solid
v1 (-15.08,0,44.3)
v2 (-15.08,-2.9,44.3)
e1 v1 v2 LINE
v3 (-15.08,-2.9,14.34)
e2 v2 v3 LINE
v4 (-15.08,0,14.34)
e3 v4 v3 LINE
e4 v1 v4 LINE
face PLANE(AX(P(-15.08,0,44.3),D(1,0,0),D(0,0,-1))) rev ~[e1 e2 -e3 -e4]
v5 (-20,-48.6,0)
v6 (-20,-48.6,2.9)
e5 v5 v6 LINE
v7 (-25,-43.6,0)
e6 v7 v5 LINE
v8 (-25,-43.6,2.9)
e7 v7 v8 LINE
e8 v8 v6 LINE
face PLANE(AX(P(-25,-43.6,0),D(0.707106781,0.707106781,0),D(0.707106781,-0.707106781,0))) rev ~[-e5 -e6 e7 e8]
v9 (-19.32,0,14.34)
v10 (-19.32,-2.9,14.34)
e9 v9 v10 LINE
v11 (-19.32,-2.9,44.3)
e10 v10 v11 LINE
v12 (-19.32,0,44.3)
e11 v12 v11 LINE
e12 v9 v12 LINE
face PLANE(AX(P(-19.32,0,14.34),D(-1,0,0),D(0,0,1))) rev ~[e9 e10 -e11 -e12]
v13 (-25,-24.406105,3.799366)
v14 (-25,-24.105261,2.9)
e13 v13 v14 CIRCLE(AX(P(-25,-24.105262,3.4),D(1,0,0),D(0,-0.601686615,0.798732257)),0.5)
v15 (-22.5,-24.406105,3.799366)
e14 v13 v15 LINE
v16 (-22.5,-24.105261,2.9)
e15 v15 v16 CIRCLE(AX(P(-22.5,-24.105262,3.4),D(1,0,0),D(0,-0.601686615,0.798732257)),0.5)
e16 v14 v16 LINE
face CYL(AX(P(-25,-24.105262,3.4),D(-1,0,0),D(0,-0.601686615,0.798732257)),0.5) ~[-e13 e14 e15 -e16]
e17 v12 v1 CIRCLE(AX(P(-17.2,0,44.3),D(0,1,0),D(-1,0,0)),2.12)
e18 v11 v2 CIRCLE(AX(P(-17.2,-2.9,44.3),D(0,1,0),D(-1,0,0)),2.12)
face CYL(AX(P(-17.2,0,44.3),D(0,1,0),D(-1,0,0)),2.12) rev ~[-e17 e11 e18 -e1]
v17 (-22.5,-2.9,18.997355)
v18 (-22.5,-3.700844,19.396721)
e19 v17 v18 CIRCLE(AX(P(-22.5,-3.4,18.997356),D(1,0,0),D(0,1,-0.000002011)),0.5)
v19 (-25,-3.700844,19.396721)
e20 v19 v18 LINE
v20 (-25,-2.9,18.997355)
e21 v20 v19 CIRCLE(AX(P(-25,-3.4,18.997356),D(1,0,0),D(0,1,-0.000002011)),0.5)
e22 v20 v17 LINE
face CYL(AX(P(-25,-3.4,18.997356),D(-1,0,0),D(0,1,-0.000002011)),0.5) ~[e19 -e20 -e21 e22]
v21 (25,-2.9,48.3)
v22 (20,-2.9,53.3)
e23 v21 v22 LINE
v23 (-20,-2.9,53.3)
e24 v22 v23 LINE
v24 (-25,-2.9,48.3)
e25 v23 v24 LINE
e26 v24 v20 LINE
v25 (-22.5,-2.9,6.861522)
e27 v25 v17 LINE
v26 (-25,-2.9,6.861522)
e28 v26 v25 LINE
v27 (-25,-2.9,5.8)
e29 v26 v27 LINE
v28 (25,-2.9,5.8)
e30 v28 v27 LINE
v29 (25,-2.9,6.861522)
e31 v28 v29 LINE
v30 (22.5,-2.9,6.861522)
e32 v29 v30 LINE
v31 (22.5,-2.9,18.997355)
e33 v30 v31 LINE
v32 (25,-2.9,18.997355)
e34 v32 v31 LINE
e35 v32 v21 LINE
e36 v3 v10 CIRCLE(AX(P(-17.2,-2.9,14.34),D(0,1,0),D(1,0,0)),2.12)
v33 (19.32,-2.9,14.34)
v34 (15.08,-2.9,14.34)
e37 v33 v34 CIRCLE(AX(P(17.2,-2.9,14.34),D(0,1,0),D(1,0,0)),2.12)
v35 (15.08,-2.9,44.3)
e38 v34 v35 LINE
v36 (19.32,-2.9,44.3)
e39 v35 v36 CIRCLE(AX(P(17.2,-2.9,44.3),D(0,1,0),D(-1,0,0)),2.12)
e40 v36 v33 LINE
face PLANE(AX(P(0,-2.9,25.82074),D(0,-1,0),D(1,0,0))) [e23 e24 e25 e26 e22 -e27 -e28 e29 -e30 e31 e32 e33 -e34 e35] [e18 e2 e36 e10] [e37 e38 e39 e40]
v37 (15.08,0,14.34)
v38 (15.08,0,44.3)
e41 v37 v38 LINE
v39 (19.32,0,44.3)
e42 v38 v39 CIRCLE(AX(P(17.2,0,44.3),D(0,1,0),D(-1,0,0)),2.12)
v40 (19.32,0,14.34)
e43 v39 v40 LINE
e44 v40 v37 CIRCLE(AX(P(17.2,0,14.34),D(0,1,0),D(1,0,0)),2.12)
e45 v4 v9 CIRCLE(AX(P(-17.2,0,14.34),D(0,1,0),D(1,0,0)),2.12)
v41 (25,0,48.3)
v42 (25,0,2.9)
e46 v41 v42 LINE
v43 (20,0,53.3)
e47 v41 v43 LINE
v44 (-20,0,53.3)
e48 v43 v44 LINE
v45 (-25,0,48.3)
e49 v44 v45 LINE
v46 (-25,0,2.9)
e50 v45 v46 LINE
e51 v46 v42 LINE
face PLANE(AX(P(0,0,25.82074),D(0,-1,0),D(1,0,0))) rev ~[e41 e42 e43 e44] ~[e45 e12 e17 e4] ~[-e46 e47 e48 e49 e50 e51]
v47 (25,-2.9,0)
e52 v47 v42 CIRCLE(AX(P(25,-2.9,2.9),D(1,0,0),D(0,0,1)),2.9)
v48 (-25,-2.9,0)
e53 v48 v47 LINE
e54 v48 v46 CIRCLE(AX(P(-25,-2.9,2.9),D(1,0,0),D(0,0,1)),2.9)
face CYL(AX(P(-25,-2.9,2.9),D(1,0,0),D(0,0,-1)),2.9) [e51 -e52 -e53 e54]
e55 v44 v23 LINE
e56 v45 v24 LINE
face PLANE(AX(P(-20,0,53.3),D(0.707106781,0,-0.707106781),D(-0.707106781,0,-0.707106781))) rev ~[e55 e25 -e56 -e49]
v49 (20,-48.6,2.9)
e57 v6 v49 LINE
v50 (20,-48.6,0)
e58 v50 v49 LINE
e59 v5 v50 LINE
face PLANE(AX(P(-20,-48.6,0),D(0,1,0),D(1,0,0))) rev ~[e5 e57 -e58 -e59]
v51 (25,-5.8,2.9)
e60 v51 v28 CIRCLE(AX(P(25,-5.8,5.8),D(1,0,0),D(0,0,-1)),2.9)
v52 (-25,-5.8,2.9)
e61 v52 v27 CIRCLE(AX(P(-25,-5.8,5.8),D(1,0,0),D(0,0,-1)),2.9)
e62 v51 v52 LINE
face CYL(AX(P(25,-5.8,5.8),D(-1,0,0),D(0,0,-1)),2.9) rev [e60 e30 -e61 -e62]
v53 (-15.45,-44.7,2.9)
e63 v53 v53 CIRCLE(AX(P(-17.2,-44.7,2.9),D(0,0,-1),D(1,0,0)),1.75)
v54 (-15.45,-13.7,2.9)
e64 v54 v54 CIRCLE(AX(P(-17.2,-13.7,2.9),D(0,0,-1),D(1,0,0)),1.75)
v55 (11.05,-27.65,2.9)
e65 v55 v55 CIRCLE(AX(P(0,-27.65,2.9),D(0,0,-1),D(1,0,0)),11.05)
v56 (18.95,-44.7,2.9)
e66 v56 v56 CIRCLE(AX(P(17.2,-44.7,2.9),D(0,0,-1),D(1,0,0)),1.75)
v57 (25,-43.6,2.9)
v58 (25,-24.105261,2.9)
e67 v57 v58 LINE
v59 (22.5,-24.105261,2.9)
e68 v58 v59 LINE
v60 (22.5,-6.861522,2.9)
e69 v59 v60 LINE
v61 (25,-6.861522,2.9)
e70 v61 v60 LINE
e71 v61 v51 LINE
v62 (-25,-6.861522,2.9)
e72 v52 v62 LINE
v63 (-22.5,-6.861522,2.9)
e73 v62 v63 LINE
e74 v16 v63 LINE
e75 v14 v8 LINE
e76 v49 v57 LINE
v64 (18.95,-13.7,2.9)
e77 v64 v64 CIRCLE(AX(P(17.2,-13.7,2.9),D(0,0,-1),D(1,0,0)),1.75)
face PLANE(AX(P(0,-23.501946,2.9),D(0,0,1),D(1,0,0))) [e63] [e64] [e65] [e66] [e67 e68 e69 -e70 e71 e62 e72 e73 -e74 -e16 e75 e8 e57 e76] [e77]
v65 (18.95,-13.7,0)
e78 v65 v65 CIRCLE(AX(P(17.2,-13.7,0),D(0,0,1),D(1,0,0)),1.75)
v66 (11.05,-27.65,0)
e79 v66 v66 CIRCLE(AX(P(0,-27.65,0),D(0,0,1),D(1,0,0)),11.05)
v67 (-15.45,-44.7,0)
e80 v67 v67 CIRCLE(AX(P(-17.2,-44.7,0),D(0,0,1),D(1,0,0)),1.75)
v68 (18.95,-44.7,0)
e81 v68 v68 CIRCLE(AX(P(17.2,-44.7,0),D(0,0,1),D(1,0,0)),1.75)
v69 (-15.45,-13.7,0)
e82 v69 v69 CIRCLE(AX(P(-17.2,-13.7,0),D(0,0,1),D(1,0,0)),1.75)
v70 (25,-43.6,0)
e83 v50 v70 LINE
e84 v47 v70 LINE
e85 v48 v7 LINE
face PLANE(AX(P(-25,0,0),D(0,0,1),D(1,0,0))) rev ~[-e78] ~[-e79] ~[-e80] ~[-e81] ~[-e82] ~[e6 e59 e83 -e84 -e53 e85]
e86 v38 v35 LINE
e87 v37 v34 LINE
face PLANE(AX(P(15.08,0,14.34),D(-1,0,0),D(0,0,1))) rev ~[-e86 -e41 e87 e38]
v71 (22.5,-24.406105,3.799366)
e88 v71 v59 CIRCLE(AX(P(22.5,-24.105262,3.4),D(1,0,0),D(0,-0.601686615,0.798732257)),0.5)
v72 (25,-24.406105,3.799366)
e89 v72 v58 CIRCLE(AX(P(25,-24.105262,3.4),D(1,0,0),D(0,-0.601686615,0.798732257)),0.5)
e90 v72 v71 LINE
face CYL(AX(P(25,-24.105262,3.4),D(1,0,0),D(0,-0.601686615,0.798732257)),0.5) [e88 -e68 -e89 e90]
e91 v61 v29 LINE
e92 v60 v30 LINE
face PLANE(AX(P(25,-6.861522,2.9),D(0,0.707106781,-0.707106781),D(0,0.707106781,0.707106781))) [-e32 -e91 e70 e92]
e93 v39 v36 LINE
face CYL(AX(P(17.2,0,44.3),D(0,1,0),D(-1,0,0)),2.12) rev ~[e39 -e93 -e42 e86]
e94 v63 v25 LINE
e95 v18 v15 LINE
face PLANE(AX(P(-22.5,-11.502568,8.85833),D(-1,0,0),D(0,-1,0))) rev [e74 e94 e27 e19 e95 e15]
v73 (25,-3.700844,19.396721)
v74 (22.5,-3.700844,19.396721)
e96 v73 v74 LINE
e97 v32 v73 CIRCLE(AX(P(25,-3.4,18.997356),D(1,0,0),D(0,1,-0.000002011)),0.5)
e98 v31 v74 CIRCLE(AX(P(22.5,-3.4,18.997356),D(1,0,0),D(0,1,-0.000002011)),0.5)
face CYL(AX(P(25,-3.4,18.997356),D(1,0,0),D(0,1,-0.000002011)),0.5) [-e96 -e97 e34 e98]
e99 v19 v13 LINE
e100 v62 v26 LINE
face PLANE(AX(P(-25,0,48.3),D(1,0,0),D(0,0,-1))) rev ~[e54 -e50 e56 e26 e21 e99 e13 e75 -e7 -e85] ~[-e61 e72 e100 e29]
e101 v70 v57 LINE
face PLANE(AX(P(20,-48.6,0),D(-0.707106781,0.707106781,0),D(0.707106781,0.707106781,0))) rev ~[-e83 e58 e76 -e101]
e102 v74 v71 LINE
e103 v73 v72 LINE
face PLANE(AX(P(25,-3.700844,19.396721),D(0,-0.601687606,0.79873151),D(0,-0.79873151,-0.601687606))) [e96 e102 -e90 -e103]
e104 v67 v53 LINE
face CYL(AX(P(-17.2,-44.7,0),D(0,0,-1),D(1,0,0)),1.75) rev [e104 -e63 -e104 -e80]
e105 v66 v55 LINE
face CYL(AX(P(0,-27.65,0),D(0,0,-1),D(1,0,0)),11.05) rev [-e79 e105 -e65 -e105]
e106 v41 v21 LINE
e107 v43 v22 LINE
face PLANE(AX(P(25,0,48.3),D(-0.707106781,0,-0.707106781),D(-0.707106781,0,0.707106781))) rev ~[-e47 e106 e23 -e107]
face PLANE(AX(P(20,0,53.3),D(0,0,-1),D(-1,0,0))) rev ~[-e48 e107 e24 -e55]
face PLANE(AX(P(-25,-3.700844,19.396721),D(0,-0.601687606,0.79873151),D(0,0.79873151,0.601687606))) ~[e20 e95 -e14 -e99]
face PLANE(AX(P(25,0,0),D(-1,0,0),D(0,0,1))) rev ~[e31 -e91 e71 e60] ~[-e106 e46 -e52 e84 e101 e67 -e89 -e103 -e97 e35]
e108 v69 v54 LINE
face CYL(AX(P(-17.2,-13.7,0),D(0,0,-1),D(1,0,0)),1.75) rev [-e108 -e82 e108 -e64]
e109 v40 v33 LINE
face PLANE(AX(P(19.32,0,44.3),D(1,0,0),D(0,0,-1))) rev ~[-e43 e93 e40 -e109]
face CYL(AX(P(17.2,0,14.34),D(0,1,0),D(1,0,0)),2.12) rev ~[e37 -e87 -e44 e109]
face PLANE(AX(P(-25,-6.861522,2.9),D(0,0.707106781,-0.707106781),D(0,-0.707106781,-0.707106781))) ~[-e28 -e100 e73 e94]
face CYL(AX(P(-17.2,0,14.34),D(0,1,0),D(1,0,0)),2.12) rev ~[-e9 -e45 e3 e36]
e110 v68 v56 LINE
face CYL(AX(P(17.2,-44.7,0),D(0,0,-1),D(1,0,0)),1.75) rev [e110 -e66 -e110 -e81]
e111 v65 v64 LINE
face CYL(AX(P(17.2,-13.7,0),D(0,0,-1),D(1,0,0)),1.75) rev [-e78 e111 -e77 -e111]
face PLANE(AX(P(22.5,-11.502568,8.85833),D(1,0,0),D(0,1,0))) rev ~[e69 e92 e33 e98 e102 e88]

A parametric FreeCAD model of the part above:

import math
import FreeCAD as App
import Part
import Sketcher

V = App.Vector
Q = App.Units.Quantity


def edges_at(feature, points):
    """Names of the edges that pass closest to the given points."""
    edges = feature.Shape.Edges
    near = lambda p: min(range(len(edges)), key=lambda i: edges[i].distToShape(Part.Vertex(*p))[0])
    return sorted({f"Edge{near(p) + 1}" for p in points})


def add_polygon(sketch, points):
    """Adds a closed chain of lines whose ends are joined by coincident constraints."""
    first, n = sketch.GeometryCount, len(points)
    for a, b in zip(points, points[1:] + points[:1]):
        sketch.addGeometry(Part.LineSegment(App.Vector(*a, 0), App.Vector(*b, 0)), False)
    for i in range(n):
        sketch.addConstraint(Sketcher.Constraint("Coincident", first + i, 2, first + (i + 1) % n, 1))

doc = App.newDocument("Part")
body = doc.addObject("PartDesign::Body", "Body")

# Sketch on XZ plane
sketch1 = body.newObject("Sketcher::SketchObject", "Sketch")
sketch1.AttachmentSupport = (doc.getObject("XZ_Plane"), [""])
sketch1.MapMode = "FlatFace"
add_polygon(sketch1, [(-25, 48.3), (-25, 0), (25, 0), (25, 48.3), (20, 53.3), (-20, 53.3)])  # lines 0-5
sketch1.addGeometry(Part.LineSegment(V(-19.32, 14.34, 0), V(-19.32, 44.3, 0)), False)  # 6
sketch1.addGeometry(Part.ArcOfCircle(Part.Circle(V(-17.2, 44.3, 0), V(0, 0, 1), 2.12), math.radians(0), math.radians(180)), False)  # 7
sketch1.addGeometry(Part.LineSegment(V(-15.08, 44.3, 0), V(-15.08, 14.34, 0)), False)  # 8
sketch1.addGeometry(Part.ArcOfCircle(Part.Circle(V(-17.2, 14.34, 0), V(0, 0, 1), 2.12), math.radians(180), math.radians(360)), False)  # 9
sketch1.addGeometry(Part.LineSegment(V(15.08, 14.34, 0), V(15.08, 44.3, 0)), False)  # 10
sketch1.addGeometry(Part.ArcOfCircle(Part.Circle(V(17.2, 44.3, 0), V(0, 0, 1), 2.12), math.radians(0), math.radians(180)), False)  # 11
sketch1.addGeometry(Part.LineSegment(V(19.32, 44.3, 0), V(19.32, 14.34, 0)), False)  # 12
sketch1.addGeometry(Part.ArcOfCircle(Part.Circle(V(17.2, 14.34, 0), V(0, 0, 1), 2.12), math.radians(180), math.radians(360)), False)  # 13
sketch1.addConstraint(Sketcher.Constraint("Tangent", 6, 2, 7, 2))
sketch1.addConstraint(Sketcher.Constraint("Tangent", 7, 1, 8, 1))
sketch1.addConstraint(Sketcher.Constraint("Tangent", 8, 2, 9, 2))
sketch1.addConstraint(Sketcher.Constraint("Tangent", 9, 1, 6, 1))
sketch1.addConstraint(Sketcher.Constraint("Tangent", 10, 2, 11, 2))
sketch1.addConstraint(Sketcher.Constraint("Tangent", 11, 1, 12, 1))
sketch1.addConstraint(Sketcher.Constraint("Tangent", 12, 2, 13, 2))
sketch1.addConstraint(Sketcher.Constraint("Tangent", 13, 1, 10, 1))
sketch1.addConstraint(Sketcher.Constraint("Vertical", 0))
sketch1.addConstraint(Sketcher.Constraint("Horizontal", 1))
sketch1.addConstraint(Sketcher.Constraint("Vertical", 2))
sketch1.addConstraint(Sketcher.Constraint("Horizontal", 4))
sketch1.addConstraint(Sketcher.Constraint("Vertical", 6))
sketch1.addConstraint(Sketcher.Constraint("Vertical", 8))
sketch1.addConstraint(Sketcher.Constraint("Vertical", 10))
sketch1.addConstraint(Sketcher.Constraint("Vertical", 12))
sketch1.addConstraint(Sketcher.Constraint("Equal", 9, 11))
sketch1.addConstraint(Sketcher.Constraint("Symmetric", 0, 2, 1, 2, -1, 1))
sketch1.addConstraint(Sketcher.Constraint("Symmetric", 7, 3, 11, 3, -2))
sketch1.addConstraint(Sketcher.Constraint("Perpendicular", 3, 5))
sketch1.addConstraint(Sketcher.Constraint("Horizontal", 9, 3, 13, 3))
sketch1.addConstraint(Sketcher.Constraint("Horizontal", 2, 2, 5, 2))
sketch1.addConstraint(Sketcher.Constraint("Equal", 3, 5))
sketch1.addConstraint(Sketcher.Constraint("DistanceX", 1, 1, 1, 2, 50.0))
sketch1.addConstraint(Sketcher.Constraint("DistanceX", 4, 2, 4, 1, 40.0))
sketch1.addConstraint(Sketcher.Constraint("Radius", 7, 2.12))
sketch1.addConstraint(Sketcher.Constraint("DistanceY", 0, 2, 0, 1, 48.3))
sketch1.addConstraint(Sketcher.Constraint("DistanceY", 11, 3, 2, 2, 4.0))
sketch1.addConstraint(Sketcher.Constraint("DistanceY", 6, 1, 6, 2, 29.96))
sketch1.addConstraint(Sketcher.Constraint("DistanceX", 7, 3, -1, 1, 17.2))
pad1 = body.newObject("PartDesign::Pad", "Pad")
pad1.Profile = sketch1
pad1.Length = 2.9

# Sketch on XY plane
sketch2 = body.newObject("Sketcher::SketchObject", "Sketch001")
sketch2.AttachmentSupport = (doc.getObject("XY_Plane"), [""])
sketch2.MapMode = "FlatFace"
add_polygon(sketch2, [(25, 0), (-25, 0), (-25, -43.6), (-20, -48.6), (20, -48.6), (25, -43.6)])  # lines 0-5
sketch2.addGeometry(Part.Circle(V(-17.2, -44.7, 0), V(0, 0, 1), 1.75), False)  # 6
sketch2.addGeometry(Part.Circle(V(17.2, -44.7, 0), V(0, 0, 1), 1.75), False)  # 7
sketch2.addGeometry(Part.Circle(V(-17.2, -13.7, 0), V(0, 0, 1), 1.75), False)  # 8
sketch2.addGeometry(Part.Circle(V(0, -27.65, 0), V(0, 0, 1), 11.05), False)  # 9
sketch2.addGeometry(Part.Circle(V(17.2, -13.7, 0), V(0, 0, 1), 1.75), False)  # 10
sketch2.addConstraint(Sketcher.Constraint("Horizontal", 0))
sketch2.addConstraint(Sketcher.Constraint("Vertical", 1))
sketch2.addConstraint(Sketcher.Constraint("Horizontal", 3))
sketch2.addConstraint(Sketcher.Constraint("Vertical", 5))
sketch2.addConstraint(Sketcher.Constraint("Equal", 6, 7))
sketch2.addConstraint(Sketcher.Constraint("Equal", 7, 8))
sketch2.addConstraint(Sketcher.Constraint("Equal", 8, 10))
sketch2.addConstraint(Sketcher.Constraint("Symmetric", 0, 2, 5, 2, -1, 1))
sketch2.addConstraint(Sketcher.Constraint("Symmetric", 6, 3, 7, 3, -2))
sketch2.addConstraint(Sketcher.Constraint("Symmetric", 8, 3, 10, 3, -2))
sketch2.addConstraint(Sketcher.Constraint("PointOnObject", 9, 3, -2))
sketch2.addConstraint(Sketcher.Constraint("Perpendicular", 2, 4))
sketch2.addConstraint(Sketcher.Constraint("Horizontal", 1, 2, 4, 2))
sketch2.addConstraint(Sketcher.Constraint("Vertical", 6, 3, 8, 3))
sketch2.addConstraint(Sketcher.Constraint("Equal", 2, 4))
sketch2.addConstraint(Sketcher.Constraint("Diameter", 6, 3.5))
sketch2.addConstraint(Sketcher.Constraint("Diameter", 9, 22.1))
sketch2.addConstraint(Sketcher.Constraint("DistanceX", 0, 2, 0, 1, 50.0))
sketch2.addConstraint(Sketcher.Constraint("DistanceX", 3, 1, 3, 2, 40.0))
sketch2.addConstraint(Sketcher.Constraint("DistanceY", 1, 2, 1, 1, 43.6))
sketch2.addConstraint(Sketcher.Constraint("DistanceY", 6, 3, 8, 3, 31.0))
sketch2.addConstraint(Sketcher.Constraint("DistanceX", 6, 3, -1, 1, 17.2))
sketch2.addConstraint(Sketcher.Constraint("DistanceY", 6, 3, -1, 1, 44.7))
sketch2.addConstraint(Sketcher.Constraint("DistanceY", 9, 3, -1, 1, 27.65))
pad2 = body.newObject("PartDesign::Pad", "Pad001")
pad2.Profile = sketch2
pad2.Length = 2.9
doc.recompute()

fillet = body.newObject("PartDesign::Fillet", "Fillet")
fillet.Base = (pad2, edges_at(pad2, [(0, -2.9, 2.9), (0, 0, 0)]))
fillet.Radius = 2.9

# Sketch on YZ plane
sketch3 = body.newObject("Sketcher::SketchObject", "Sketch002")
sketch3.AttachmentSupport = (doc.getObject("YZ_Plane"), [""])
sketch3.MapMode = "FlatFace"
sketch3.AttachmentOffset = App.Placement(V(0, 0, 25), App.Rotation())
sketch3.addGeometry(Part.LineSegment(V(-3.700844, 19.396721, 0), V(-24.406105, 3.799366, 0)), False)
sketch3.addGeometry(Part.ArcOfCircle(Part.Circle(V(-24.105262, 3.4, 0), V(0, 0, 1), 0.5), math.radians(126.990788), math.radians(270.000084)), False)
sketch3.addGeometry(Part.LineSegment(V(-24.105261, 2.9, 0), V(-6.861522, 2.9, 0)), False)
sketch3.addGeometry(Part.LineSegment(V(-6.861522, 2.9, 0), V(-2.9, 6.861522, 0)), False)
sketch3.addGeometry(Part.LineSegment(V(-2.9, 6.861522, 0), V(-2.9, 18.997355, 0)), False)
sketch3.addGeometry(Part.ArcOfCircle(Part.Circle(V(-3.4, 18.997356, 0), V(0, 0, 1), 0.5), math.radians(-0.000115), math.radians(126.990958)), False)
sketch3.addConstraint(Sketcher.Constraint("Tangent", 0, 2, 1, 1))
sketch3.addConstraint(Sketcher.Constraint("Tangent", 1, 2, 2, 1))
sketch3.addConstraint(Sketcher.Constraint("Coincident", 2, 2, 3, 1))
sketch3.addConstraint(Sketcher.Constraint("Coincident", 3, 2, 4, 1))
sketch3.addConstraint(Sketcher.Constraint("Coincident", 4, 2, 5, 1))
sketch3.addConstraint(Sketcher.Constraint("Tangent", 5, 2, 0, 1))
sketch3.addConstraint(Sketcher.Constraint("Horizontal", 2))
sketch3.addConstraint(Sketcher.Constraint("Vertical", 4))
sketch3.addConstraint(Sketcher.Constraint("Equal", 1, 5))
sketch3.addConstraint(Sketcher.Constraint("Horizontal", 5, 3, 4, 2))
sketch3.addConstraint(Sketcher.Constraint("Radius", 1, 0.5))
sketch3.addConstraint(Sketcher.Constraint("Angle", 3, Q("45 deg")))
sketch3.addConstraint(Sketcher.Constraint("DistanceY", -1, 1, 1, 3, 3.4))
sketch3.addConstraint(Sketcher.Constraint("DistanceX", 5, 3, -1, 1, 3.4))
sketch3.addConstraint(Sketcher.Constraint("DistanceX", 2, 1, 2, 2, 17.243739))
sketch3.addConstraint(Sketcher.Constraint("DistanceY", 3, 2, 5, 2, 12.535199))
sketch3.addConstraint(Sketcher.Constraint("Distance", 0, 25.92268))
pad3 = body.newObject("PartDesign::Pad", "Pad002")
pad3.Profile = sketch3
pad3.Length = 2.5
pad3.Reversed = True
body2 = doc.addObject("PartDesign::Body", "Body001")
doc.recompute()

body2.BaseFeature = body
doc.recompute()

mirroring = doc.addObject("Part::Mirroring", "Mirroring")
mirroring.Source = body
mirroring.Base = V(0, 0, 0)
mirroring.Normal = V(1, 0, 0)
body3 = doc.addObject("PartDesign::Body", "Body002")
body3.BaseFeature = mirroring
boolean = body2.newObject("PartDesign::Boolean", "Boolean")
boolean.Type = "Fuse"
boolean.addObjects([body3])
doc.recompute()
mirroring.Visibility = False

doc.recompute()
